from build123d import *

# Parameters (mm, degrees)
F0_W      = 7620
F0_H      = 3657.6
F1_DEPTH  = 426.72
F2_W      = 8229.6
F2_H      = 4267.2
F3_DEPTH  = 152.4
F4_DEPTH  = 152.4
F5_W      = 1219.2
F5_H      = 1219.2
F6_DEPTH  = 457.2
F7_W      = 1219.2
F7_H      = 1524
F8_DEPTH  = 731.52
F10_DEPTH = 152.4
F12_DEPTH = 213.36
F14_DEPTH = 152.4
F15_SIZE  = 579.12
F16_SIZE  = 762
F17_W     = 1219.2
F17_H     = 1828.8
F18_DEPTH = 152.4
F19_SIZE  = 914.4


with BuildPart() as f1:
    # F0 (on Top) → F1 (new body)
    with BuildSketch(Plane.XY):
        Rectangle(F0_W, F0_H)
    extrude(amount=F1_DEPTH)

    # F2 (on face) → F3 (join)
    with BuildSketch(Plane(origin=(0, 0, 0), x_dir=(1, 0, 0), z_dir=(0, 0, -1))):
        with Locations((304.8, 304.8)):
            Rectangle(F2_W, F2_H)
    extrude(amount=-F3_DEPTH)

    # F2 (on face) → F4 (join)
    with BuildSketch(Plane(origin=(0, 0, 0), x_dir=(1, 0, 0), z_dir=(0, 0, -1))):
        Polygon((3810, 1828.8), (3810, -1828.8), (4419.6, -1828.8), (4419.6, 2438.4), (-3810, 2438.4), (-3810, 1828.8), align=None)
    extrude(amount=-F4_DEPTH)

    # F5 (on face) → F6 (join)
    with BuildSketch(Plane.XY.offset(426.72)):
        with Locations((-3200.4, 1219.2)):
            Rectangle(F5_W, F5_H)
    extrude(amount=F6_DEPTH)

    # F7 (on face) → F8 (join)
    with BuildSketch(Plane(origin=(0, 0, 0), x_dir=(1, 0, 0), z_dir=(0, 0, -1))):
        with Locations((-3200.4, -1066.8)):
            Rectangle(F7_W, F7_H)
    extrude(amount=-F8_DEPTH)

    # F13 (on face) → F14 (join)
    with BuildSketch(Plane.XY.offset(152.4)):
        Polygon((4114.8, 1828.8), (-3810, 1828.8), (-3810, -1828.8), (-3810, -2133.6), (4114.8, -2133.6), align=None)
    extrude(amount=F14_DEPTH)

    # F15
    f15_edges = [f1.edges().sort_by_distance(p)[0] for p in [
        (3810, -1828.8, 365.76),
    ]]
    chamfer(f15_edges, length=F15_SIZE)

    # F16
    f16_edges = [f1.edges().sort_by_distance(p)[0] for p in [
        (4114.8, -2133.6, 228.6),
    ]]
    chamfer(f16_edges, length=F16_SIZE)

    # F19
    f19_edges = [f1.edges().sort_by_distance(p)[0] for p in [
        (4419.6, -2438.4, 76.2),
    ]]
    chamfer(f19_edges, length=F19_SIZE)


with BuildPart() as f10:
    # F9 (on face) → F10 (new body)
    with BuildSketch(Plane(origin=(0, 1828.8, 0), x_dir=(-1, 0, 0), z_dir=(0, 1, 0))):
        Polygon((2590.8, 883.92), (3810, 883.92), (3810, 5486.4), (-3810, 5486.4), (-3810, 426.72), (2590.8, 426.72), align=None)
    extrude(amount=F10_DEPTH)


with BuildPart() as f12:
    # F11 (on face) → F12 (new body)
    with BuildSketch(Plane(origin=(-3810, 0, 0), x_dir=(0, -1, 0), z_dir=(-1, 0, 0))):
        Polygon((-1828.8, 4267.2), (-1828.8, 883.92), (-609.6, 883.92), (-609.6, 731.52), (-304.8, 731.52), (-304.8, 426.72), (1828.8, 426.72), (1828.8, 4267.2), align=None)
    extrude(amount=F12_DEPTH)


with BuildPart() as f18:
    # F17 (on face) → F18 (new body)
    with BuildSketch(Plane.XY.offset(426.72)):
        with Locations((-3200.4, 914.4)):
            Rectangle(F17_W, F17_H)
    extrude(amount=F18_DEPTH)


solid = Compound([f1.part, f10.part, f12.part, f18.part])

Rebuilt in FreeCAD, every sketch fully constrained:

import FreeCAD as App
import Part
import Sketcher
from FreeCAD import Vector
Q = App.Units.Quantity


def edges_at(feature, points):
    """Names of the edges that pass closest to the given points."""
    edges = feature.Shape.Edges
    near = lambda p: min(range(len(edges)), key=lambda i: edges[i].distToShape(Part.Vertex(*p))[0])
    return sorted({f"Edge{near(p) + 1}" for p in points})

doc = App.newDocument("Part")
body = doc.addObject("PartDesign::Body", "Body")

# Sketch on XY plane
sketch1 = body.newObject("Sketcher::SketchObject", "Sketch")
sketch1.AttachmentSupport = (doc.getObject("XY_Plane"), [""])
sketch1.MapMode = "FlatFace"
sketch1.addGeometry(Part.LineSegment(Vector(-3810, 1829, 0), Vector(-3810, -1829, 0)), False)
sketch1.addGeometry(Part.LineSegment(Vector(-3810, -1829, 0), Vector(3810, -1829, 0)), False)
sketch1.addGeometry(Part.LineSegment(Vector(3810, -1829, 0), Vector(3810, 1829, 0)), False)
sketch1.addGeometry(Part.LineSegment(Vector(3810, 1829, 0), Vector(-3810, 1829, 0)), False)
sketch1.addConstraint(Sketcher.Constraint("Coincident", 0, 2, 1, 1))
sketch1.addConstraint(Sketcher.Constraint("Coincident", 1, 2, 2, 1))
sketch1.addConstraint(Sketcher.Constraint("Coincident", 2, 2, 3, 1))
sketch1.addConstraint(Sketcher.Constraint("Coincident", 3, 2, 0, 1))
sketch1.addConstraint(Sketcher.Constraint("Vertical", 0))
sketch1.addConstraint(Sketcher.Constraint("Horizontal", 1))
sketch1.addConstraint(Sketcher.Constraint("Vertical", 2))
sketch1.addConstraint(Sketcher.Constraint("Horizontal", 3))
sketch1.addConstraint(Sketcher.Constraint("Symmetric", 0, 2, 2, 2, -1, 1))
sketch1.addConstraint(Sketcher.Constraint("DistanceX", 1, 1, 1, 2, Q("300 in")))
sketch1.addConstraint(Sketcher.Constraint("DistanceY", 0, 2, 0, 1, Q("144 in")))
pad1 = body.newObject("PartDesign::Pad", "Pad")
pad1.Profile = sketch1
pad1.Length = Q("16.8 in")

# Sketch on XY plane
sketch2 = body.newObject("Sketcher::SketchObject", "Sketch001")
sketch2.AttachmentSupport = (doc.getObject("XY_Plane"), [""])
sketch2.MapMode = "FlatFace"
sketch2.addGeometry(Part.LineSegment(Vector(-3810, -2438, 0), Vector(-3810, 1829, 0)), False)
sketch2.addGeometry(Part.LineSegment(Vector(-3810, 1829, 0), Vector(4420, 1829, 0)), False)
sketch2.addGeometry(Part.LineSegment(Vector(4420, 1829, 0), Vector(4420, -2438, 0)), False)
sketch2.addGeometry(Part.LineSegment(Vector(4420, -2438, 0), Vector(-3810, -2438, 0)), False)
sketch2.addConstraint(Sketcher.Constraint("Coincident", 0, 2, 1, 1))
sketch2.addConstraint(Sketcher.Constraint("Coincident", 1, 2, 2, 1))
sketch2.addConstraint(Sketcher.Constraint("Coincident", 2, 2, 3, 1))
sketch2.addConstraint(Sketcher.Constraint("Coincident", 3, 2, 0, 1))
sketch2.addConstraint(Sketcher.Constraint("Vertical", 0))
sketch2.addConstraint(Sketcher.Constraint("Horizontal", 1))
sketch2.addConstraint(Sketcher.Constraint("Vertical", 2))
sketch2.addConstraint(Sketcher.Constraint("Horizontal", 3))
sketch2.addConstraint(Sketcher.Constraint("DistanceX", 1, 1, 1, 2, Q("324 in")))
sketch2.addConstraint(Sketcher.Constraint("DistanceY", 0, 1, 0, 2, Q("168 in")))
sketch2.addConstraint(Sketcher.Constraint("DistanceX", 0, 2, -1, 1, Q("150 in")))
sketch2.addConstraint(Sketcher.Constraint("DistanceY", -1, 1, 0, 2, Q("72 in")))
pad2 = body.newObject("PartDesign::Pad", "Pad001")
pad2.Profile = sketch2
pad2.Length = Q("6 in")

# Sketch on XY plane
sketch3 = body.newObject("Sketcher::SketchObject", "Sketch002")
sketch3.AttachmentSupport = (doc.getObject("XY_Plane"), [""])
sketch3.MapMode = "FlatFace"
sketch3.addGeometry(Part.LineSegment(Vector(3810, -1829, 0), Vector(3810, 1829, 0)), False)
sketch3.addGeometry(Part.LineSegment(Vector(3810, 1829, 0), Vector(4420, 1829, 0)), False)
sketch3.addGeometry(Part.LineSegment(Vector(4420, 1829, 0), Vector(4420, -2438, 0)), False)
sketch3.addGeometry(Part.LineSegment(Vector(4420, -2438, 0), Vector(-3810, -2438, 0)), False)
sketch3.addGeometry(Part.LineSegment(Vector(-3810, -2438, 0), Vector(-3810, -1829, 0)), False)
sketch3.addGeometry(Part.LineSegment(Vector(-3810, -1829, 0), Vector(3810, -1829, 0)), False)
sketch3.addConstraint(Sketcher.Constraint("Coincident", 0, 2, 1, 1))
sketch3.addConstraint(Sketcher.Constraint("Coincident", 1, 2, 2, 1))
sketch3.addConstraint(Sketcher.Constraint("Coincident", 2, 2, 3, 1))
sketch3.addConstraint(Sketcher.Constraint("Coincident", 3, 2, 4, 1))
sketch3.addConstraint(Sketcher.Constraint("Coincident", 4, 2, 5, 1))
sketch3.addConstraint(Sketcher.Constraint("Coincident", 5, 2, 0, 1))
sketch3.addConstraint(Sketcher.Constraint("Vertical", 0))
sketch3.addConstraint(Sketcher.Constraint("Horizontal", 1))
sketch3.addConstraint(Sketcher.Constraint("Vertical", 2))
sketch3.addConstraint(Sketcher.Constraint("Horizontal", 3))
sketch3.addConstraint(Sketcher.Constraint("Vertical", 4))
sketch3.addConstraint(Sketcher.Constraint("Horizontal", 5))
sketch3.addConstraint(Sketcher.Constraint("Symmetric", 0, 2, 4, 2, -1, 1))
sketch3.addConstraint(Sketcher.Constraint("Equal", 1, 4))
sketch3.addConstraint(Sketcher.Constraint("DistanceX", 1, 1, 1, 2, Q("24 in")))
sketch3.addConstraint(Sketcher.Constraint("DistanceX", 3, 2, 3, 1, Q("324 in")))
sketch3.addConstraint(Sketcher.Constraint("DistanceY", 0, 1, 0, 2, Q("144 in")))
pad3 = body.newObject("PartDesign::Pad", "Pad002")
pad3.Profile = sketch3
pad3.Length = Q("6 in")

# Sketch on XY plane
sketch4 = body.newObject("Sketcher::SketchObject", "Sketch003")
sketch4.AttachmentSupport = (doc.getObject("XY_Plane"), [""])
sketch4.MapMode = "FlatFace"
sketch4.AttachmentOffset = App.Placement(Vector(0, 0, 16.8 * 25.4), App.Rotation())
sketch4.addGeometry(Part.LineSegment(Vector(-3810, 1829, 0), Vector(-3810, 610, 0)), False)
sketch4.addGeometry(Part.LineSegment(Vector(-3810, 610, 0), Vector(-2591, 610, 0)), False)
sketch4.addGeometry(Part.LineSegment(Vector(-2591, 610, 0), Vector(-2591, 1829, 0)), False)
sketch4.addGeometry(Part.LineSegment(Vector(-2591, 1829, 0), Vector(-3810, 1829, 0)), False)
sketch4.addConstraint(Sketcher.Constraint("Coincident", 0, 2, 1, 1))
sketch4.addConstraint(Sketcher.Constraint("Coincident", 1, 2, 2, 1))
sketch4.addConstraint(Sketcher.Constraint("Coincident", 2, 2, 3, 1))
sketch4.addConstraint(Sketcher.Constraint("Coincident", 3, 2, 0, 1))
sketch4.addConstraint(Sketcher.Constraint("Vertical", 0))
sketch4.addConstraint(Sketcher.Constraint("Horizontal", 1))
sketch4.addConstraint(Sketcher.Constraint("Vertical", 2))
sketch4.addConstraint(Sketcher.Constraint("Horizontal", 3))
sketch4.addConstraint(Sketcher.Constraint("Equal", 3, 0))
sketch4.addConstraint(Sketcher.Constraint("DistanceX", 1, 1, 1, 2, Q("48 in")))
sketch4.addConstraint(Sketcher.Constraint("DistanceX", 0, 2, -1, 1, Q("150 in")))
sketch4.addConstraint(Sketcher.Constraint("DistanceY", -1, 1, 0, 2, Q("24 in")))
pad4 = body.newObject("PartDesign::Pad", "Pad003")
pad4.Profile = sketch4
pad4.Length = Q("18 in")

# Sketch on XY plane
sketch5 = body.newObject("Sketcher::SketchObject", "Sketch004")
sketch5.AttachmentSupport = (doc.getObject("XY_Plane"), [""])
sketch5.MapMode = "FlatFace"
sketch5.addGeometry(Part.LineSegment(Vector(-3810, 305, 0), Vector(-3810, 1829, 0)), False)
sketch5.addGeometry(Part.LineSegment(Vector(-3810, 1829, 0), Vector(-2591, 1829, 0)), False)
sketch5.addGeometry(Part.LineSegment(Vector(-2591, 1829, 0), Vector(-2591, 305, 0)), False)
sketch5.addGeometry(Part.LineSegment(Vector(-2591, 305, 0), Vector(-3810, 305, 0)), False)
sketch5.addConstraint(Sketcher.Constraint("Coincident", 0, 2, 1, 1))
sketch5.addConstraint(Sketcher.Constraint("Coincident", 1, 2, 2, 1))
sketch5.addConstraint(Sketcher.Constraint("Coincident", 2, 2, 3, 1))
sketch5.addConstraint(Sketcher.Constraint("Coincident", 3, 2, 0, 1))
sketch5.addConstraint(Sketcher.Constraint("Vertical", 0))
sketch5.addConstraint(Sketcher.Constraint("Horizontal", 1))
sketch5.addConstraint(Sketcher.Constraint("Vertical", 2))
sketch5.addConstraint(Sketcher.Constraint("Horizontal", 3))
sketch5.addConstraint(Sketcher.Constraint("DistanceX", 1, 1, 1, 2, Q("48 in")))
sketch5.addConstraint(Sketcher.Constraint("DistanceY", 0, 1, 0, 2, Q("60 in")))
sketch5.addConstraint(Sketcher.Constraint("DistanceX", 0, 2, -1, 1, Q("150 in")))
sketch5.addConstraint(Sketcher.Constraint("DistanceY", -1, 1, 0, 2, Q("72 in")))
pad5 = body.newObject("PartDesign::Pad", "Pad004")
pad5.Profile = sketch5
pad5.Length = Q("28.8 in")

# Sketch on XY plane
sketch6 = body.newObject("Sketcher::SketchObject", "Sketch005")
sketch6.AttachmentSupport = (doc.getObject("XY_Plane"), [""])
sketch6.MapMode = "FlatFace"
sketch6.AttachmentOffset = App.Placement(Vector(0, 0, 6 * 25.4), App.Rotation())
sketch6.addGeometry(Part.LineSegment(Vector(4115, 1829, 0), Vector(-3810, 1829, 0)), False)
sketch6.addGeometry(Part.LineSegment(Vector(-3810, 1829, 0), Vector(-3810, -2134, 0)), False)
sketch6.addGeometry(Part.LineSegment(Vector(-3810, -2134, 0), Vector(4115, -2134, 0)), False)
sketch6.addGeometry(Part.LineSegment(Vector(4115, -2134, 0), Vector(4115, 1829, 0)), False)
sketch6.addConstraint(Sketcher.Constraint("Coincident", 0, 2, 1, 1))
sketch6.addConstraint(Sketcher.Constraint("Coincident", 1, 2, 2, 1))
sketch6.addConstraint(Sketcher.Constraint("Coincident", 2, 2, 3, 1))
sketch6.addConstraint(Sketcher.Constraint("Coincident", 3, 2, 0, 1))
sketch6.addConstraint(Sketcher.Constraint("Horizontal", 0))
sketch6.addConstraint(Sketcher.Constraint("Vertical", 1))
sketch6.addConstraint(Sketcher.Constraint("Horizontal", 2))
sketch6.addConstraint(Sketcher.Constraint("Vertical", 3))
sketch6.addConstraint(Sketcher.Constraint("DistanceX", 0, 2, 0, 1, Q("312 in")))
sketch6.addConstraint(Sketcher.Constraint("DistanceY", 1, 2, 1, 1, Q("156 in")))
sketch6.addConstraint(Sketcher.Constraint("DistanceX", 0, 2, -1, 1, Q("150 in")))
sketch6.addConstraint(Sketcher.Constraint("DistanceY", -1, 1, 0, 2, Q("72 in")))
pad6 = body.newObject("PartDesign::Pad", "Pad005")
pad6.Profile = sketch6
pad6.Length = Q("6 in")
doc.recompute()

chamfer = body.newObject("PartDesign::Chamfer", "Chamfer")
chamfer.Base = (pad6, edges_at(pad6, [(3810, -1828.8, 365.76)]))
chamfer.Size = Q("22.8 in")
doc.recompute()

chamfer2 = body.newObject("PartDesign::Chamfer", "Chamfer001")
chamfer2.Base = (chamfer, edges_at(chamfer, [(4114.8, -2133.6, 228.6)]))
chamfer2.Size = Q("30 in")
doc.recompute()

chamfer3 = body.newObject("PartDesign::Chamfer", "Chamfer002")
chamfer3.Base = (chamfer2, edges_at(chamfer2, [(4419.6, -2438.4, 76.2)]))
chamfer3.Size = Q("36 in")
body2 = doc.addObject("PartDesign::Body", "Body001")

# Sketch on XZ plane
sketch7 = body2.newObject("Sketcher::SketchObject", "Sketch006")
sketch7.AttachmentSupport = (doc.getObject("XZ_Plane001"), [""])
sketch7.MapMode = "FlatFace"
sketch7.AttachmentOffset = App.Placement(Vector(0, 0, -72 * 25.4), App.Rotation())
sketch7.addGeometry(Part.LineSegment(Vector(-2591, 884, 0), Vector(-3810, 884, 0)), False)
sketch7.addGeometry(Part.LineSegment(Vector(-3810, 884, 0), Vector(-3810, 5486, 0)), False)
sketch7.addGeometry(Part.LineSegment(Vector(-3810, 5486, 0), Vector(3810, 5486, 0)), False)
sketch7.addGeometry(Part.LineSegment(Vector(3810, 5486, 0), Vector(3810, 427, 0)), False)
sketch7.addGeometry(Part.LineSegment(Vector(3810, 427, 0), Vector(-2591, 427, 0)), False)
sketch7.addGeometry(Part.LineSegment(Vector(-2591, 427, 0), Vector(-2591, 884, 0)), False)
sketch7.addConstraint(Sketcher.Constraint("Coincident", 0, 2, 1, 1))
sketch7.addConstraint(Sketcher.Constraint("Coincident", 1, 2, 2, 1))
sketch7.addConstraint(Sketcher.Constraint("Coincident", 2, 2, 3, 1))
sketch7.addConstraint(Sketcher.Constraint("Coincident", 3, 2, 4, 1))
sketch7.addConstraint(Sketcher.Constraint("Coincident", 4, 2, 5, 1))
sketch7.addConstraint(Sketcher.Constraint("Coincident", 5, 2, 0, 1))
sketch7.addConstraint(Sketcher.Constraint("Horizontal", 0))
sketch7.addConstraint(Sketcher.Constraint("Vertical", 1))
sketch7.addConstraint(Sketcher.Constraint("Horizontal", 2))
sketch7.addConstraint(Sketcher.Constraint("Vertical", 3))
sketch7.addConstraint(Sketcher.Constraint("Horizontal", 4))
sketch7.addConstraint(Sketcher.Constraint("Vertical", 5))
sketch7.addConstraint(Sketcher.Constraint("DistanceX", 0, 2, 0, 1, Q("48 in")))
sketch7.addConstraint(Sketcher.Constraint("DistanceX", 2, 1, 2, 2, Q("300 in")))
sketch7.addConstraint(Sketcher.Constraint("DistanceY", 5, 1, 5, 2, Q("18 in")))
sketch7.addConstraint(Sketcher.Constraint("DistanceY", 1, 1, 1, 2, Q("181.2 in")))
sketch7.addConstraint(Sketcher.Constraint("DistanceX", 0, 2, -1, 1, Q("150 in")))
sketch7.addConstraint(Sketcher.Constraint("DistanceY", -1, 1, 1, 2, Q("216 in")))
pad7 = body2.newObject("PartDesign::Pad", "Pad006")
pad7.Profile = sketch7
pad7.Length = Q("6 in")
pad7.Reversed = True
body3 = doc.addObject("PartDesign::Body", "Body002")

# Sketch on YZ plane
sketch8 = body3.newObject("Sketcher::SketchObject", "Sketch007")
sketch8.AttachmentSupport = (doc.getObject("YZ_Plane002"), [""])
sketch8.MapMode = "FlatFace"
sketch8.AttachmentOffset = App.Placement(Vector(0, 0, -150 * 25.4), App.Rotation())
sketch8.addGeometry(Part.LineSegment(Vector(1829, 4267, 0), Vector(1829, 884, 0)), False)
sketch8.addGeometry(Part.LineSegment(Vector(1829, 884, 0), Vector(610, 884, 0)), False)
sketch8.addGeometry(Part.LineSegment(Vector(610, 884, 0), Vector(610, 732, 0)), False)
sketch8.addGeometry(Part.LineSegment(Vector(610, 732, 0), Vector(305, 732, 0)), False)
sketch8.addGeometry(Part.LineSegment(Vector(305, 732, 0), Vector(305, 427, 0)), False)
sketch8.addGeometry(Part.LineSegment(Vector(305, 427, 0), Vector(-1829, 427, 0)), False)
sketch8.addGeometry(Part.LineSegment(Vector(-1829, 427, 0), Vector(-1829, 4267, 0)), False)
sketch8.addGeometry(Part.LineSegment(Vector(-1829, 4267, 0), Vector(1829, 4267, 0)), False)
sketch8.addConstraint(Sketcher.Constraint("Coincident", 0, 2, 1, 1))
sketch8.addConstraint(Sketcher.Constraint("Coincident", 1, 2, 2, 1))
sketch8.addConstraint(Sketcher.Constraint("Coincident", 2, 2, 3, 1))
sketch8.addConstraint(Sketcher.Constraint("Coincident", 3, 2, 4, 1))
sketch8.addConstraint(Sketcher.Constraint("Coincident", 4, 2, 5, 1))
sketch8.addConstraint(Sketcher.Constraint("Coincident", 5, 2, 6, 1))
sketch8.addConstraint(Sketcher.Constraint("Coincident", 6, 2, 7, 1))
sketch8.addConstraint(Sketcher.Constraint("Coincident", 7, 2, 0, 1))
sketch8.addConstraint(Sketcher.Constraint("Vertical", 0))
sketch8.addConstraint(Sketcher.Constraint("Horizontal", 1))
sketch8.addConstraint(Sketcher.Constraint("Vertical", 2))
sketch8.addConstraint(Sketcher.Constraint("Horizontal", 3))
sketch8.addConstraint(Sketcher.Constraint("Vertical", 4))
sketch8.addConstraint(Sketcher.Constraint("Horizontal", 5))
sketch8.addConstraint(Sketcher.Constraint("Vertical", 6))
sketch8.addConstraint(Sketcher.Constraint("Horizontal", 7))
sketch8.addConstraint(Sketcher.Constraint("Equal", 3, 4))
sketch8.addConstraint(Sketcher.Constraint("DistanceX", 1, 2, 1, 1, Q("48 in")))
sketch8.addConstraint(Sketcher.Constraint("DistanceX", 3, 2, 3, 1, Q("12 in")))
sketch8.addConstraint(Sketcher.Constraint("DistanceX", 5, 2, 5, 1, Q("84 in")))
sketch8.addConstraint(Sketcher.Constraint("DistanceY", 2, 2, 2, 1, Q("6 in")))
sketch8.addConstraint(Sketcher.Constraint("DistanceY", 0, 2, 0, 1, Q("133.2 in")))
sketch8.addConstraint(Sketcher.Constraint("DistanceX", -1, 1, 0, 2, Q("72 in")))
sketch8.addConstraint(Sketcher.Constraint("DistanceY", -1, 1, 6, 2, Q("168 in")))
pad8 = body3.newObject("PartDesign::Pad", "Pad007")
pad8.Profile = sketch8
pad8.Length = Q("8.4 in")
pad8.Reversed = True
body4 = doc.addObject("PartDesign::Body", "Body003")

# Sketch on XY plane
sketch9 = body4.newObject("Sketcher::SketchObject", "Sketch008")
sketch9.AttachmentSupport = (doc.getObject("XY_Plane003"), [""])
sketch9.MapMode = "FlatFace"
sketch9.AttachmentOffset = App.Placement(Vector(0, 0, 16.8 * 25.4), App.Rotation())
sketch9.addGeometry(Part.LineSegment(Vector(-3810, 1829, 0), Vector(-3810, 0, 0)), False)
sketch9.addGeometry(Part.LineSegment(Vector(-3810, 0, 0), Vector(-2591, 0, 0)), False)
sketch9.addGeometry(Part.LineSegment(Vector(-2591, 0, 0), Vector(-2591, 1829, 0)), False)
sketch9.addGeometry(Part.LineSegment(Vector(-2591, 1829, 0), Vector(-3810, 1829, 0)), False)
sketch9.addConstraint(Sketcher.Constraint("Coincident", 0, 2, 1, 1))
sketch9.addConstraint(Sketcher.Constraint("Coincident", 1, 2, 2, 1))
sketch9.addConstraint(Sketcher.Constraint("Coincident", 2, 2, 3, 1))
sketch9.addConstraint(Sketcher.Constraint("Coincident", 3, 2, 0, 1))
sketch9.addConstraint(Sketcher.Constraint("Vertical", 0))
sketch9.addConstraint(Sketcher.Constraint("Horizontal", 1))
sketch9.addConstraint(Sketcher.Constraint("Vertical", 2))
sketch9.addConstraint(Sketcher.Constraint("Horizontal", 3))
sketch9.addConstraint(Sketcher.Constraint("PointOnObject", 0, 2, -1))
sketch9.addConstraint(Sketcher.Constraint("DistanceX", 1, 1, 1, 2, Q("48 in")))
sketch9.addConstraint(Sketcher.Constraint("DistanceY", 0, 2, 0, 1, Q("72 in")))
sketch9.addConstraint(Sketcher.Constraint("DistanceX", 0, 2, -1, 1, Q("150 in")))
pad9 = body4.newObject("PartDesign::Pad", "Pad008")
pad9.Profile = sketch9
pad9.Length = Q("6 in")

doc.recompute()
